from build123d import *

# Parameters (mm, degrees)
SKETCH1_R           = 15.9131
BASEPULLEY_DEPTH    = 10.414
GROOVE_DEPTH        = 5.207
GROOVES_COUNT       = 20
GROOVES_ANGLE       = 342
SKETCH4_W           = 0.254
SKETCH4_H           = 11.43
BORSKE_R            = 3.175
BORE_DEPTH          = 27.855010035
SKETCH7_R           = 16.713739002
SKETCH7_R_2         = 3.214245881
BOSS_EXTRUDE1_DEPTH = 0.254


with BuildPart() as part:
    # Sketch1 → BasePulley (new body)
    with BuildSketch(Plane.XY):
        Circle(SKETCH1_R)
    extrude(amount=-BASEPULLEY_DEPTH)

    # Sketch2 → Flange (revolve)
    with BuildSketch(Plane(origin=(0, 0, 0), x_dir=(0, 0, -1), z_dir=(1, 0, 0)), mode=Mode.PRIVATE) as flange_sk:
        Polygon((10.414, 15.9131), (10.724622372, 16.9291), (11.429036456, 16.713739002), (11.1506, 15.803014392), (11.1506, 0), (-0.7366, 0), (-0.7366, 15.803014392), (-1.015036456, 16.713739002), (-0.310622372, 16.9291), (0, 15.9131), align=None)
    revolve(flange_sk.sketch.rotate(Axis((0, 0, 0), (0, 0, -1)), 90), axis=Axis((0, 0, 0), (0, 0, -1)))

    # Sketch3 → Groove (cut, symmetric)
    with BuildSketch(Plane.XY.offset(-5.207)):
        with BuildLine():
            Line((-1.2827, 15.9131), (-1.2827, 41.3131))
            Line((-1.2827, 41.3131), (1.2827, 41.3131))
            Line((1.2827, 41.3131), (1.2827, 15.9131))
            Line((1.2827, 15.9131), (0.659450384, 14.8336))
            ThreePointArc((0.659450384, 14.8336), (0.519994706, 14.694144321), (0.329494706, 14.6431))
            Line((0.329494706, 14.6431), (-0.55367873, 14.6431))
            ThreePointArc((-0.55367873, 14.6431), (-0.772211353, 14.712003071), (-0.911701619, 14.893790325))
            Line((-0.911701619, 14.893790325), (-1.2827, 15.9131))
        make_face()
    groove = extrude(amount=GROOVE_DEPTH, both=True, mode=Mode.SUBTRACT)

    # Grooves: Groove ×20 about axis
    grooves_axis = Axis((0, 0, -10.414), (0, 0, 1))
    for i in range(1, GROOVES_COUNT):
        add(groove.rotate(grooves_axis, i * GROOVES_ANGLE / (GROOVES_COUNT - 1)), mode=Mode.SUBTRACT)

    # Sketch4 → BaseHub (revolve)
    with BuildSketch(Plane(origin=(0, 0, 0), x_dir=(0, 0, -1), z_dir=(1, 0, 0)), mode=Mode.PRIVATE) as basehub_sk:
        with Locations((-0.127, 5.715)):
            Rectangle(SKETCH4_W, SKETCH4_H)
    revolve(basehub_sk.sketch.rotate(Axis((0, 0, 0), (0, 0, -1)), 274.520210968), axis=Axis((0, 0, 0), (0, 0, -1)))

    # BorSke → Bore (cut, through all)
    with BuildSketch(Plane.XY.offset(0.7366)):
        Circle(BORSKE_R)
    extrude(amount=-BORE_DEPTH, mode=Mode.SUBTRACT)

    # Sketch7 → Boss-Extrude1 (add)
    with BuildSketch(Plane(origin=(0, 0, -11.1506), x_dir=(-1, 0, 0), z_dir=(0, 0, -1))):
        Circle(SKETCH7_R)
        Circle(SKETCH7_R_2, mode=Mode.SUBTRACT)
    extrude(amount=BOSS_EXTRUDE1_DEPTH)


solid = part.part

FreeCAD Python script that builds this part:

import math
import FreeCAD as App
import Part
import Sketcher

V = App.Vector
Q = App.Units.Quantity


def add_polygon(sketch, points):
    """Adds a closed chain of lines whose ends are joined by coincident constraints."""
    first, n = sketch.GeometryCount, len(points)
    for a, b in zip(points, points[1:] + points[:1]):
        sketch.addGeometry(Part.LineSegment(App.Vector(*a, 0), App.Vector(*b, 0)), False)
    for i in range(n):
        sketch.addConstraint(Sketcher.Constraint("Coincident", first + i, 2, first + (i + 1) % n, 1))

doc = App.newDocument("Part")
params = doc.addObject("Spreadsheet::Sheet", "Params")
for row, (alias, value) in enumerate([
    ("sketch1_diameter", "1.253 in"),
    ("pad1_length", "0.41 in"),
    ("sketch2_height", "0.41 in"),
    ("sketch2_height2", "0.468 in"),
    ("sketch2_length", "0.029 in"),
    ("revolution_angle", "360 deg"),
    ("sketch3_height", "1 in"),
    ("sketch3_radius", "0.015 in"),
    ("sketch3_width", "0.101 in"),
    ("pocket1_length", "0.41 in"),
    ("sketch4_width", "0.45 in"),
    ("sketch4_height", "0.01 in"),
    ("revolution2_angle", "360 deg"),
    ("sketch5_diameter", "0.25 in"),
    ("pad2_length", "0.01 in"),
], start=1):
    params.set(f"A{row}", alias)
    params.set(f"B{row}", "=" + value)
    params.setAlias(f"B{row}", alias)

body = doc.addObject("PartDesign::Body", "Body")

# Sketch on XY plane
sketch1 = body.newObject("Sketcher::SketchObject", "Sketch")
sketch1.AttachmentSupport = (doc.getObject("XY_Plane"), [""])
sketch1.MapMode = "FlatFace"
sketch1.addGeometry(Part.Circle(V(0, 0, 0), V(0, 0, 1), 16), False)
sketch1.addConstraint([
    Sketcher.Constraint("Coincident", 0, 3, -1, 1),
    Sketcher.Constraint("Diameter", 0, Q("1.253 in")),
])
sketch1.setExpression("Constraints[1]", "Params.sketch1_diameter")
pad1 = body.newObject("PartDesign::Pad", "Pad")
pad1.Profile = sketch1
pad1.setExpression("Length", "Params.pad1_length")
pad1.Reversed = True

# Sketch on YZ plane
sketch2 = body.newObject("Sketcher::SketchObject", "Sketch001")
sketch2.AttachmentSupport = (doc.getObject("YZ_Plane"), [""])
sketch2.MapMode = "FlatFace"
add_polygon(sketch2, [(16.9, -10.7), (15.9, -10.4), (15.9, 0), (16.9, 0.3), (16.7, 1), (15.8, 0.7), (0, 0.7), (0, -11.2), (15.8, -11.2), (16.7, -11.4)])  # lines 0-9
sketch2.addConstraint([
    Sketcher.Constraint("Vertical", 1),
    Sketcher.Constraint("Horizontal", 5),
    Sketcher.Constraint("Vertical", 6),
    Sketcher.Constraint("Horizontal", 7),
    Sketcher.Constraint("PointOnObject", 1, 2, -1),
    Sketcher.Constraint("PointOnObject", 5, 2, -2),
    Sketcher.Constraint("Perpendicular", 2, 3),
    Sketcher.Constraint("Perpendicular", 3, 4),
    Sketcher.Constraint("Parallel", 0, 8),
    Sketcher.Constraint("Perpendicular", 8, 9),
    Sketcher.Constraint("Vertical", 4, 2, 7, 2),
    Sketcher.Constraint("Vertical", 3, 2, 8, 2),
    Sketcher.Constraint("Vertical", 2, 2, 9, 2),
    Sketcher.Constraint("Equal", 0, 2),
    Sketcher.Constraint("Angle", 0, Q("163 deg")),
    Sketcher.Constraint("DistanceY", 1, 1, 1, 2, Q("0.41 in")),
    Sketcher.Constraint("DistanceY", 6, 2, 6, 1, Q("0.468 in")),
    Sketcher.Constraint("DistanceX", 1, 2, 2, 2, Q("0.04 in")),
    Sketcher.Constraint("Distance", 3, Q("0.029 in")),
    Sketcher.Constraint("DistanceX", -1, 1, 0, 2, Q("0.6265 in")),
])
sketch2.setExpression("Constraints[25]", "Params.sketch2_height")
sketch2.setExpression("Constraints[26]", "Params.sketch2_height2")
sketch2.setExpression("Constraints[28]", "Params.sketch2_length")
revolution = body.newObject("PartDesign::Revolution", "Revolution")
revolution.Profile = sketch2
revolution.ReferenceAxis = (sketch2, ["V_Axis"])
revolution.setExpression("Angle", "Params.revolution_angle")

# Sketch on XY plane
sketch3 = body.newObject("Sketcher::SketchObject", "Sketch002")
sketch3.AttachmentSupport = (doc.getObject("XY_Plane"), [""])
sketch3.MapMode = "FlatFace"
sketch3.AttachmentOffset = App.Placement(V(0, 0, -0.205 * 25.4), App.Rotation())
sketch3.addGeometry([
    Part.LineSegment(V(-1.28, 41.31, 0), V(-1.28, 15.91, 0)),  # 0
    Part.LineSegment(V(-1.28, 15.91, 0), V(-0.91, 14.89, 0)),  # 1
    Part.ArcOfCircle(Part.Circle(V(-0.55, 15.02, 0), V(0, 0, 1), 0.38), math.radians(-160), math.radians(-90)),  # 2
    Part.LineSegment(V(-0.55, 14.64, 0), V(0.33, 14.64, 0)),  # 3
    Part.ArcOfCircle(Part.Circle(V(0.33, 15.02, 0), V(0, 0, 1), 0.38), math.radians(-90), math.radians(-30)),  # 4
    Part.LineSegment(V(0.66, 14.83, 0), V(1.28, 15.91, 0)),  # 5
    Part.LineSegment(V(1.28, 15.91, 0), V(1.28, 41.31, 0)),  # 6
    Part.LineSegment(V(1.28, 41.31, 0), V(-1.28, 41.31, 0)),  # 7
], False)
sketch3.addConstraint([
    Sketcher.Constraint("Coincident", 0, 2, 1, 1),
    Sketcher.Constraint("Tangent", 1, 2, 2, 1),
    Sketcher.Constraint("Tangent", 2, 2, 3, 1),
    Sketcher.Constraint("Tangent", 3, 2, 4, 1),
    Sketcher.Constraint("Tangent", 4, 2, 5, 1),
    Sketcher.Constraint("Coincident", 5, 2, 6, 1),
    Sketcher.Constraint("Coincident", 6, 2, 7, 1),
    Sketcher.Constraint("Coincident", 7, 2, 0, 1),
    Sketcher.Constraint("Vertical", 0),
    Sketcher.Constraint("Horizontal", 3),
    Sketcher.Constraint("Vertical", 6),
    Sketcher.Constraint("Horizontal", 7),
    Sketcher.Constraint("Equal", 2, 4),
    Sketcher.Constraint("Symmetric", 0, 2, 5, 2, -2),
    Sketcher.Constraint("DistanceY", 0, 2, 0, 1, Q("1 in")),
    Sketcher.Constraint("Angle", 1, Q("-70 deg")),
    Sketcher.Constraint("Angle", 5, Q("60 deg")),
    Sketcher.Constraint("Radius", 2, Q("0.015 in")),
    Sketcher.Constraint("DistanceX", 7, 2, 7, 1, Q("0.101 in")),
    Sketcher.Constraint("DistanceY", 2, 2, 0, 2, Q("0.05 in")),
    Sketcher.Constraint("DistanceY", -1, 1, 4, 2, Q("0.584 in")),
])
sketch3.setExpression("Constraints[14]", "Params.sketch3_height")
sketch3.setExpression("Constraints[17]", "Params.sketch3_radius")
sketch3.setExpression("Constraints[18]", "Params.sketch3_width")
pocket1 = body.newObject("PartDesign::Pocket", "Pocket")
pocket1.Profile = sketch3
pocket1.setExpression("Length", "Params.pocket1_length")
pocket1.Midplane = True
doc.recompute()

polarpattern = body.newObject("PartDesign::PolarPattern", "PolarPattern")
polarpattern.Originals = [pocket1]
polarpattern.Axis = (doc.getObject("Z_Axis"), [""])
polarpattern.Angle = 360
polarpattern.Occurrences = 20
body.Tip = polarpattern

# Sketch on YZ plane
sketch4 = body.newObject("Sketcher::SketchObject", "Sketch003")
sketch4.AttachmentSupport = (doc.getObject("YZ_Plane"), [""])
sketch4.MapMode = "FlatFace"
add_polygon(sketch4, [(11.43, 0.25), (0, 0.25), (0, 0), (11.43, 0)])  # lines 0-3
sketch4.addConstraint([
    Sketcher.Constraint("Horizontal", 0),
    Sketcher.Constraint("Vertical", 1),
    Sketcher.Constraint("Horizontal", 2),
    Sketcher.Constraint("Vertical", 3),
    Sketcher.Constraint("Coincident", 1, 2, -1, 1),
    Sketcher.Constraint("DistanceX", 0, 2, 0, 1, Q("0.45 in")),
    Sketcher.Constraint("DistanceY", 1, 2, 1, 1, Q("0.01 in")),
])
sketch4.setExpression("Constraints[9]", "Params.sketch4_width")
sketch4.setExpression("Constraints[10]", "Params.sketch4_height")
revolution2 = body.newObject("PartDesign::Revolution", "Revolution001")
revolution2.Profile = sketch4
revolution2.ReferenceAxis = (sketch4, ["V_Axis"])
revolution2.setExpression("Angle", "Params.revolution2_angle")

# Sketch on XY plane
sketch5 = body.newObject("Sketcher::SketchObject", "Sketch004")
sketch5.AttachmentSupport = (doc.getObject("XY_Plane"), [""])
sketch5.MapMode = "FlatFace"
sketch5.AttachmentOffset = App.Placement(V(0, 0, 0.029 * 25.4), App.Rotation())
sketch5.addGeometry(Part.Circle(V(0, 0, 0), V(0, 0, 1), 3.2), False)
sketch5.addConstraint([
    Sketcher.Constraint("Coincident", 0, 3, -1, 1),
    Sketcher.Constraint("Diameter", 0, Q("0.25 in")),
])
sketch5.setExpression("Constraints[1]", "Params.sketch5_diameter")
pocket2 = body.newObject("PartDesign::Pocket", "Pocket001")
pocket2.Profile = sketch5
pocket2.Type = "ThroughAll"

# Sketch on XY plane
sketch6 = body.newObject("Sketcher::SketchObject", "Sketch005")
sketch6.AttachmentSupport = (doc.getObject("XY_Plane"), [""])
sketch6.MapMode = "FlatFace"
sketch6.AttachmentOffset = App.Placement(V(0, 0, -0.439 * 25.4), App.Rotation())
sketch6.addGeometry([
    Part.Circle(V(0, 0, 0), V(0, 0, 1), 16.7),
    Part.Circle(V(0, 0, 0), V(0, 0, 1), 3.2),
], False)
sketch6.addConstraint([
    Sketcher.Constraint("Coincident", 0, 3, -1, 1),
    Sketcher.Constraint("Coincident", 1, 3, -1, 1),
    Sketcher.Constraint("Diameter", 0, Q("33.427478 mm")),
    Sketcher.Constraint("Diameter", 1, Q("6.428492 mm")),
])
pad2 = body.newObject("PartDesign::Pad", "Pad001")
pad2.Profile = sketch6
pad2.setExpression("Length", "Params.pad2_length")
pad2.Reversed = True

doc.recompute()
